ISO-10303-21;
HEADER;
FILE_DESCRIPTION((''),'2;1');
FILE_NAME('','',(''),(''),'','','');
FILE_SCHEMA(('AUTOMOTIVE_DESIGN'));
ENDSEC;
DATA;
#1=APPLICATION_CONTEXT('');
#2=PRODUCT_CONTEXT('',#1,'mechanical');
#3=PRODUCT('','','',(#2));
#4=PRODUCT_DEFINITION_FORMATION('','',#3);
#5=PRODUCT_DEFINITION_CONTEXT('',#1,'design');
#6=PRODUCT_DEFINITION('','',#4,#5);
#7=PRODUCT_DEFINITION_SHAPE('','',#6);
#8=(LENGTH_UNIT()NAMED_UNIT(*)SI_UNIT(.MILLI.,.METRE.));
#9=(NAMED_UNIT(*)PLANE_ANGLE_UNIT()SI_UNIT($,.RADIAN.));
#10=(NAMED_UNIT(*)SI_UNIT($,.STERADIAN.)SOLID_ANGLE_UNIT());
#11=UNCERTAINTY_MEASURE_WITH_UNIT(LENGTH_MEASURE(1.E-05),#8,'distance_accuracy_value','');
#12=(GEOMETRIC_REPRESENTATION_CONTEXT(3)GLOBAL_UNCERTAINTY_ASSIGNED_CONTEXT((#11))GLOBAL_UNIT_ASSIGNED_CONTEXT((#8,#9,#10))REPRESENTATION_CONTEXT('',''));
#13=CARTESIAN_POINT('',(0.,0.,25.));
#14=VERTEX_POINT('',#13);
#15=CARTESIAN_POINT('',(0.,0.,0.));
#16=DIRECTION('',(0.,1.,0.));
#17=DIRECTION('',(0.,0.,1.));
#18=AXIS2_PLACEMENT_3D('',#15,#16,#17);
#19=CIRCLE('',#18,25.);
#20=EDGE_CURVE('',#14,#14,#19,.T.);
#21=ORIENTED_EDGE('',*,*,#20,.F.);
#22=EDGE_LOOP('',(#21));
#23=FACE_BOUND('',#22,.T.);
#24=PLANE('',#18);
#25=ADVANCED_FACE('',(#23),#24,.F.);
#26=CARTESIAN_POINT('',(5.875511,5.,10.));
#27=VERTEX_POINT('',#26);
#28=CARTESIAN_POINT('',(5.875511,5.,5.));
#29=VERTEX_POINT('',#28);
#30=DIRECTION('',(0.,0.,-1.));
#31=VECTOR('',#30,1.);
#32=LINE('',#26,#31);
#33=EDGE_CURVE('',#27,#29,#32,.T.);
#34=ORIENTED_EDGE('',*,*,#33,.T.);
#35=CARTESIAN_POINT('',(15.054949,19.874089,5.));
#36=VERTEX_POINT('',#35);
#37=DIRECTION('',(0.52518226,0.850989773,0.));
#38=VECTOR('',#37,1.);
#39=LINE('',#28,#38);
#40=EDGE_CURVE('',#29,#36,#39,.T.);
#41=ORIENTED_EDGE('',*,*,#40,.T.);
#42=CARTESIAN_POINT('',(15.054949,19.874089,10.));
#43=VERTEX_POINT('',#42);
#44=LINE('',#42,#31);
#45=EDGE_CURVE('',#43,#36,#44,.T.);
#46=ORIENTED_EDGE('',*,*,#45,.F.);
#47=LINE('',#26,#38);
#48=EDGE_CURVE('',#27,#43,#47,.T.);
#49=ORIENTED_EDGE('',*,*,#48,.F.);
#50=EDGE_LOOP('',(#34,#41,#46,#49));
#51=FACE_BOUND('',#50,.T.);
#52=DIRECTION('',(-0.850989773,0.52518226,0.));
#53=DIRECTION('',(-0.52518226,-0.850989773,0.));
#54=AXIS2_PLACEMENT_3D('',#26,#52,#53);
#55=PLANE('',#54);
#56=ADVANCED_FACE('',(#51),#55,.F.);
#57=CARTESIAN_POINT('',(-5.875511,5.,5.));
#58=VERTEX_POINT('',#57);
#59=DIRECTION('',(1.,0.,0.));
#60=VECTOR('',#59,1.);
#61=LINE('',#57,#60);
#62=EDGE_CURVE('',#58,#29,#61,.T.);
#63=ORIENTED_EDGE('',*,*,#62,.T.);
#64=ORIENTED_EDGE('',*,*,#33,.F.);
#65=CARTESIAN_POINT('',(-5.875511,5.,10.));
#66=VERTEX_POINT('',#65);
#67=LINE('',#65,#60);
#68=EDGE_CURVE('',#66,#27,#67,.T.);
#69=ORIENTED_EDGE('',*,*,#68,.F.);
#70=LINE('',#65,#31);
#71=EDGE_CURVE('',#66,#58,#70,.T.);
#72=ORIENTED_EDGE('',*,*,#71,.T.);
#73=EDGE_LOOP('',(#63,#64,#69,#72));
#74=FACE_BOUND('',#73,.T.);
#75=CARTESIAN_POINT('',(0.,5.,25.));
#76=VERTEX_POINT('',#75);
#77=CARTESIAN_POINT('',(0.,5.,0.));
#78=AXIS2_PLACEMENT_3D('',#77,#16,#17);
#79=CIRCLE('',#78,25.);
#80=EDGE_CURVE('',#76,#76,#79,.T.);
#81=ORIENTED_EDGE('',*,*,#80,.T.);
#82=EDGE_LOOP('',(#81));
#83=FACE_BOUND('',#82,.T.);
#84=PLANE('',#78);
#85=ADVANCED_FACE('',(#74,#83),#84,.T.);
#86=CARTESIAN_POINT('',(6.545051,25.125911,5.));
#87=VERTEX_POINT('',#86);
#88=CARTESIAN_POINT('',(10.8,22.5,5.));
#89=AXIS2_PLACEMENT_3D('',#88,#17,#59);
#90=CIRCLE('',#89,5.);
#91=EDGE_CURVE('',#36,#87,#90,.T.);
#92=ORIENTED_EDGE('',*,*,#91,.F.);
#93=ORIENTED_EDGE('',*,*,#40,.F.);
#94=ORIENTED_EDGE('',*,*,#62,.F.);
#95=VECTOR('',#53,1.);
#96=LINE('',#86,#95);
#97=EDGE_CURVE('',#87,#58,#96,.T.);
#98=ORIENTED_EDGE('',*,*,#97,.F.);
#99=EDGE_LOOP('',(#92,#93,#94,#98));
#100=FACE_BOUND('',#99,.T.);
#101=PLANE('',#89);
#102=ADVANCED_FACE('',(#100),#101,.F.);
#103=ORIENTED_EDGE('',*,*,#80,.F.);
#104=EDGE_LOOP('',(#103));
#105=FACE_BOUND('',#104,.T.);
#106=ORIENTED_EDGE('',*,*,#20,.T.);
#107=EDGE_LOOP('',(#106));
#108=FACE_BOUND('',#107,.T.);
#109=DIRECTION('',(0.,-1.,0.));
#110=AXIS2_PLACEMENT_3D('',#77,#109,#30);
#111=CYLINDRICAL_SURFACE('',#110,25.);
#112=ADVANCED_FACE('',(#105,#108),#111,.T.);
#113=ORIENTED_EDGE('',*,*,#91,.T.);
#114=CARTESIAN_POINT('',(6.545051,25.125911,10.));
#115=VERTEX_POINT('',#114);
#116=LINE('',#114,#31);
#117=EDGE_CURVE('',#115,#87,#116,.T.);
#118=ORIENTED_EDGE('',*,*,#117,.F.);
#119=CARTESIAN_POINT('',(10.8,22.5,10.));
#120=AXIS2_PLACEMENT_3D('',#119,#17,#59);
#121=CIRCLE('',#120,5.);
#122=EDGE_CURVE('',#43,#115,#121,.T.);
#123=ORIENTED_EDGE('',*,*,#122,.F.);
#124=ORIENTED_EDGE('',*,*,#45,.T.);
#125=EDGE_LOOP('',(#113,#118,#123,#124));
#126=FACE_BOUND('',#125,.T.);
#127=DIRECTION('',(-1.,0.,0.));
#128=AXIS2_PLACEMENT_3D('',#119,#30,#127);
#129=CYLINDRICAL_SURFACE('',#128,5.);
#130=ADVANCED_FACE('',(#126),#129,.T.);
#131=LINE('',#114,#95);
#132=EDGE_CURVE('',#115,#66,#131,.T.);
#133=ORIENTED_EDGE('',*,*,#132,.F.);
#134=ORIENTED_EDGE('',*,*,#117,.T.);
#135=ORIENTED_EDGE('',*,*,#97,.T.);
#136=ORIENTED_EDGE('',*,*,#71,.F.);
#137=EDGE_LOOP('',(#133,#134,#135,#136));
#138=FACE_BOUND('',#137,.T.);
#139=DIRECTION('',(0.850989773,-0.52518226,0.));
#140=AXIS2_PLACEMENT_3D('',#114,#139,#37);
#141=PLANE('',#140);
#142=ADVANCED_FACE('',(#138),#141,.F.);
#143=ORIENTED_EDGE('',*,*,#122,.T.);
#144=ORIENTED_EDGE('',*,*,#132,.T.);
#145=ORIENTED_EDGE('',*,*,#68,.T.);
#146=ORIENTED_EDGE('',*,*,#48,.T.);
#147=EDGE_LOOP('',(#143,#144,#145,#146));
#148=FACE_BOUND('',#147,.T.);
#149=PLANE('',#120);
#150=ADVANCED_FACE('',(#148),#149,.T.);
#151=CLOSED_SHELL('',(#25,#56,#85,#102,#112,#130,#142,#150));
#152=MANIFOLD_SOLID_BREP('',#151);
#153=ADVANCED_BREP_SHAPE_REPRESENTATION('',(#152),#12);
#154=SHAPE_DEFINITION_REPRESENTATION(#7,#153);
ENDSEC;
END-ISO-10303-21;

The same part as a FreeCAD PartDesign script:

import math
import FreeCAD as App
import Part
import Sketcher
from FreeCAD import Vector
Q = App.Units.Quantity

doc = App.newDocument("Part")
body = doc.addObject("PartDesign::Body", "Body")

sketch1 = body.newObject("Sketcher::SketchObject", "Sketch")
sketch1.AttachmentSupport = (doc.getObject("XZ_Plane"), [""])
sketch1.MapMode = "FlatFace"
sketch1.addGeometry(Part.Circle(Vector(0, 0, 0), Vector(0, 0, 1), 25), False)
sketch1.addConstraint(Sketcher.Constraint("Coincident", 0, 3, -1, 1))
sketch1.addConstraint(Sketcher.Constraint("Diameter", 0, Q("50 mm")))
pad1 = body.newObject("PartDesign::Pad", "Pad")
pad1.Profile = sketch1
pad1.Length = 5
pad1.Reversed = True

sketch2 = body.newObject("Sketcher::SketchObject", "Sketch001")
sketch2.AttachmentSupport = (doc.getObject("XY_Plane"), [""])
sketch2.MapMode = "FlatFace"
sketch2.AttachmentOffset = App.Placement(Vector(0, 0, 5), App.Rotation())
sketch2.addGeometry(Part.LineSegment(Vector(6, 5, 0), Vector(15, 20, 0)), False)
sketch2.addGeometry(Part.ArcOfCircle(Part.Circle(Vector(11, 22, 0), Vector(0, 0, 1), 5), math.radians(-32), math.radians(148)), False)
sketch2.addGeometry(Part.LineSegment(Vector(7, 25, 0), Vector(-6, 5, 0)), False)
sketch2.addGeometry(Part.LineSegment(Vector(-6, 5, 0), Vector(6, 5, 0)), False)
sketch2.addConstraint(Sketcher.Constraint("Tangent", 0, 2, 1, 1))
sketch2.addConstraint(Sketcher.Constraint("Tangent", 1, 2, 2, 1))
sketch2.addConstraint(Sketcher.Constraint("Coincident", 2, 2, 3, 1))
sketch2.addConstraint(Sketcher.Constraint("Coincident", 3, 2, 0, 1))
sketch2.addConstraint(Sketcher.Constraint("Horizontal", 3))
sketch2.addConstraint(Sketcher.Constraint("Parallel", 0, 2))
sketch2.addConstraint(Sketcher.Constraint("Radius", 1, Q("5 mm")))
sketch2.addConstraint(Sketcher.Constraint("DistanceY", -1, 1, 2, 2, Q("5 mm")))
sketch2.addConstraint(Sketcher.Constraint("DistanceX", -1, 1, 1, 3, Q("10.8 mm")))
sketch2.addConstraint(Sketcher.Constraint("DistanceY", -1, 1, 1, 3, Q("22.5 mm")))
sketch2.addConstraint(Sketcher.Constraint("DistanceX", 3, 1, 3, 2, Q("11.751023 mm")))
pad2 = body.newObject("PartDesign::Pad", "Pad001")
pad2.Profile = sketch2
pad2.Length = 5

doc.recompute()
